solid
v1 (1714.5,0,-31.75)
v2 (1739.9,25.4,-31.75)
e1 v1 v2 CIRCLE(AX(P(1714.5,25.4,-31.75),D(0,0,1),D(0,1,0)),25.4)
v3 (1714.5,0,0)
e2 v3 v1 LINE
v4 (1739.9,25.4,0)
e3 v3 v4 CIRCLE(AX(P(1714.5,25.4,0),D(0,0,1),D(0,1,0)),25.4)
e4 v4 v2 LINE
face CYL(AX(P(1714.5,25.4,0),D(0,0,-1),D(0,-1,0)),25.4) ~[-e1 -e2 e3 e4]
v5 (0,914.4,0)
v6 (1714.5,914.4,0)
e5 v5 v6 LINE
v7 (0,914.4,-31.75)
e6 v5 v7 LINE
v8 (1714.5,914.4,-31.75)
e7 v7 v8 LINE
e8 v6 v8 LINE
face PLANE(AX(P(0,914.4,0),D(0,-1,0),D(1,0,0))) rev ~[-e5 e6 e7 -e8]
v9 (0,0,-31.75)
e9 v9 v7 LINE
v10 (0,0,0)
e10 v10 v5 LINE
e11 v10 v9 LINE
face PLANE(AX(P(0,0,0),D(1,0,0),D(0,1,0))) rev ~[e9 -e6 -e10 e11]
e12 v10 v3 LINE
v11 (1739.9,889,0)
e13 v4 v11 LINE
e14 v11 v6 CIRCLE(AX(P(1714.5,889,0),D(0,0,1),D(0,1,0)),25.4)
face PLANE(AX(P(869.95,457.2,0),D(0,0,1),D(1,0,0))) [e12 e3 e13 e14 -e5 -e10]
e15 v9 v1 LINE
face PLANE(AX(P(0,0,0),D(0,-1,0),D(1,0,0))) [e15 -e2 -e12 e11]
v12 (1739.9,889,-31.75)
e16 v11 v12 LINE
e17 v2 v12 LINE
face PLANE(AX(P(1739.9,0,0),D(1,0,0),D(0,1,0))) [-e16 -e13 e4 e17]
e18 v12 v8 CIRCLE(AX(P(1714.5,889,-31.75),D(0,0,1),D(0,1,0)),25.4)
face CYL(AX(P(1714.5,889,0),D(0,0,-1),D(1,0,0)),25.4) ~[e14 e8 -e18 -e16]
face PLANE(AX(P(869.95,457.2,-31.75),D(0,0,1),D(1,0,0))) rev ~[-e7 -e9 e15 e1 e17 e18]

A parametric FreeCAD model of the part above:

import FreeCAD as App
import Part
import Sketcher

V = App.Vector
Q = App.Units.Quantity


def edges_at(feature, points):
    """Names of the edges that pass closest to the given points."""
    edges = feature.Shape.Edges
    near = lambda p: min(range(len(edges)), key=lambda i: edges[i].distToShape(Part.Vertex(*p))[0])
    return sorted({f"Edge{near(p) + 1}" for p in points})


def add_polygon(sketch, points):
    """Adds a closed chain of lines whose ends are joined by coincident constraints."""
    first, n = sketch.GeometryCount, len(points)
    for a, b in zip(points, points[1:] + points[:1]):
        sketch.addGeometry(Part.LineSegment(App.Vector(*a, 0), App.Vector(*b, 0)), False)
    for i in range(n):
        sketch.addConstraint(Sketcher.Constraint("Coincident", first + i, 2, first + (i + 1) % n, 1))

doc = App.newDocument("Part")
body = doc.addObject("PartDesign::Body", "Body")

# Sketch on XY plane
sketch1 = body.newObject("Sketcher::SketchObject", "Sketch")
sketch1.AttachmentSupport = (doc.getObject("XY_Plane"), [""])
sketch1.MapMode = "FlatFace"
add_polygon(sketch1, [(0, 914.4), (0, 0), (1739.9, 0), (1739.9, 914.4)])  # lines 0-3
sketch1.addConstraint([
    Sketcher.Constraint("Vertical", 0),
    Sketcher.Constraint("Horizontal", 1),
    Sketcher.Constraint("Vertical", 2),
    Sketcher.Constraint("Horizontal", 3),
    Sketcher.Constraint("Coincident", 0, 2, -1, 1),
    Sketcher.Constraint("DistanceY", 0, 2, 0, 1, Q("36 in")),
    Sketcher.Constraint("DistanceX", 1, 1, 1, 2, Q("68.5 in")),
])
pad1 = body.newObject("PartDesign::Pad", "Pad")
pad1.Profile = sketch1
pad1.Length = Q("1.25 in")
pad1.Reversed = True
doc.recompute()

fillet = body.newObject("PartDesign::Fillet", "Fillet")
fillet.Base = (pad1, edges_at(pad1, [(1739.9, 0, -15.875), (1739.9, 914.4, -15.875)]))
fillet.Radius = Q("1 in")

doc.recompute()
